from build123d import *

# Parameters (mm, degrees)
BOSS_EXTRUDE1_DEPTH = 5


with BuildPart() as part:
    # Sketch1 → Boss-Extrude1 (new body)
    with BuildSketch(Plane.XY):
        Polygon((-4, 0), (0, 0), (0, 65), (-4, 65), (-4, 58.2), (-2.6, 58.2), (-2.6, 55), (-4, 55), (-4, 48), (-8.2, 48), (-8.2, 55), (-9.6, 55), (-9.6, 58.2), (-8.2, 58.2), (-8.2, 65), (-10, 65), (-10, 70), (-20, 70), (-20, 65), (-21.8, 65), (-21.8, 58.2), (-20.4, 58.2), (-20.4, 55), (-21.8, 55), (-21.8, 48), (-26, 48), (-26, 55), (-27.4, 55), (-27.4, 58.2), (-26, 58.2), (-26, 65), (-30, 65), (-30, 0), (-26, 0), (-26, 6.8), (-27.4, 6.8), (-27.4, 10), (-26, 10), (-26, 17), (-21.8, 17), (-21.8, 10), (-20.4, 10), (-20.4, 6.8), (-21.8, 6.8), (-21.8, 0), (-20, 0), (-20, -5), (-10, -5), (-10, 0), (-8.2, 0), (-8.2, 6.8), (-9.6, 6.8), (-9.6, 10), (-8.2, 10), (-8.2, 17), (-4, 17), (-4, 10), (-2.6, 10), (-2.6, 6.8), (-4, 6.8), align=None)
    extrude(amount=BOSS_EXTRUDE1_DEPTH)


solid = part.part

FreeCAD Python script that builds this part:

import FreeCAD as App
import Part
import Sketcher

doc = App.newDocument("Part")
params = doc.addObject("Spreadsheet::Sheet", "Params")
for row, (alias, value) in enumerate([
    ("sketch1_width", "4 mm"),
    ("sketch1_width2", "10 mm"),
    ("sketch1_height", "65 mm"),
    ("sketch1_height2", "7 mm"),
    ("sketch1_height3", "5 mm"),
    ("pad1_length", "5 mm"),
], start=1):
    params.set(f"A{row}", alias)
    params.set(f"B{row}", "=" + value)
    params.setAlias(f"B{row}", alias)

body = doc.addObject("PartDesign::Body", "Body")

# Sketch on XY plane
sketch1 = body.newObject("Sketcher::SketchObject", "Sketch")
sketch1.AttachmentSupport = (doc.getObject("XY_Plane"), [""])
sketch1.MapMode = "FlatFace"
sketch1.addGeometry(Part.LineSegment(App.Vector(-4, 0, 0), App.Vector(0, 0, 0)), False)
sketch1.addGeometry(Part.LineSegment(App.Vector(0, 0, 0), App.Vector(0, 65, 0)), False)
sketch1.addGeometry(Part.LineSegment(App.Vector(0, 65, 0), App.Vector(-4, 65, 0)), False)
sketch1.addGeometry(Part.LineSegment(App.Vector(-4, 65, 0), App.Vector(-4, 58.2, 0)), False)
sketch1.addGeometry(Part.LineSegment(App.Vector(-4, 58.2, 0), App.Vector(-2.6, 58.2, 0)), False)
sketch1.addGeometry(Part.LineSegment(App.Vector(-2.6, 58.2, 0), App.Vector(-2.6, 55, 0)), False)
sketch1.addGeometry(Part.LineSegment(App.Vector(-2.6, 55, 0), App.Vector(-4, 55, 0)), False)
sketch1.addGeometry(Part.LineSegment(App.Vector(-4, 55, 0), App.Vector(-4, 48, 0)), False)
sketch1.addGeometry(Part.LineSegment(App.Vector(-4, 48, 0), App.Vector(-8.2, 48, 0)), False)
sketch1.addGeometry(Part.LineSegment(App.Vector(-8.2, 48, 0), App.Vector(-8.2, 55, 0)), False)
sketch1.addGeometry(Part.LineSegment(App.Vector(-8.2, 55, 0), App.Vector(-9.6, 55, 0)), False)
sketch1.addGeometry(Part.LineSegment(App.Vector(-9.6, 55, 0), App.Vector(-9.6, 58.2, 0)), False)
sketch1.addGeometry(Part.LineSegment(App.Vector(-9.6, 58.2, 0), App.Vector(-8.2, 58.2, 0)), False)
sketch1.addGeometry(Part.LineSegment(App.Vector(-8.2, 58.2, 0), App.Vector(-8.2, 65, 0)), False)
sketch1.addGeometry(Part.LineSegment(App.Vector(-8.2, 65, 0), App.Vector(-10, 65, 0)), False)
sketch1.addGeometry(Part.LineSegment(App.Vector(-10, 65, 0), App.Vector(-10, 70, 0)), False)
sketch1.addGeometry(Part.LineSegment(App.Vector(-10, 70, 0), App.Vector(-20, 70, 0)), False)
sketch1.addGeometry(Part.LineSegment(App.Vector(-20, 70, 0), App.Vector(-20, 65, 0)), False)
sketch1.addGeometry(Part.LineSegment(App.Vector(-20, 65, 0), App.Vector(-21.8, 65, 0)), False)
sketch1.addGeometry(Part.LineSegment(App.Vector(-21.8, 65, 0), App.Vector(-21.8, 58.2, 0)), False)
sketch1.addGeometry(Part.LineSegment(App.Vector(-21.8, 58.2, 0), App.Vector(-20.4, 58.2, 0)), False)
sketch1.addGeometry(Part.LineSegment(App.Vector(-20.4, 58.2, 0), App.Vector(-20.4, 55, 0)), False)
sketch1.addGeometry(Part.LineSegment(App.Vector(-20.4, 55, 0), App.Vector(-21.8, 55, 0)), False)
sketch1.addGeometry(Part.LineSegment(App.Vector(-21.8, 55, 0), App.Vector(-21.8, 48, 0)), False)
sketch1.addGeometry(Part.LineSegment(App.Vector(-21.8, 48, 0), App.Vector(-26, 48, 0)), False)
sketch1.addGeometry(Part.LineSegment(App.Vector(-26, 48, 0), App.Vector(-26, 55, 0)), False)
sketch1.addGeometry(Part.LineSegment(App.Vector(-26, 55, 0), App.Vector(-27.4, 55, 0)), False)
sketch1.addGeometry(Part.LineSegment(App.Vector(-27.4, 55, 0), App.Vector(-27.4, 58.2, 0)), False)
sketch1.addGeometry(Part.LineSegment(App.Vector(-27.4, 58.2, 0), App.Vector(-26, 58.2, 0)), False)
sketch1.addGeometry(Part.LineSegment(App.Vector(-26, 58.2, 0), App.Vector(-26, 65, 0)), False)
sketch1.addGeometry(Part.LineSegment(App.Vector(-26, 65, 0), App.Vector(-30, 65, 0)), False)
sketch1.addGeometry(Part.LineSegment(App.Vector(-30, 65, 0), App.Vector(-30, 0, 0)), False)
sketch1.addGeometry(Part.LineSegment(App.Vector(-30, 0, 0), App.Vector(-26, 0, 0)), False)
sketch1.addGeometry(Part.LineSegment(App.Vector(-26, 0, 0), App.Vector(-26, 6.8, 0)), False)
sketch1.addGeometry(Part.LineSegment(App.Vector(-26, 6.8, 0), App.Vector(-27.4, 6.8, 0)), False)
sketch1.addGeometry(Part.LineSegment(App.Vector(-27.4, 6.8, 0), App.Vector(-27.4, 10, 0)), False)
sketch1.addGeometry(Part.LineSegment(App.Vector(-27.4, 10, 0), App.Vector(-26, 10, 0)), False)
sketch1.addGeometry(Part.LineSegment(App.Vector(-26, 10, 0), App.Vector(-26, 17, 0)), False)
sketch1.addGeometry(Part.LineSegment(App.Vector(-26, 17, 0), App.Vector(-21.8, 17, 0)), False)
sketch1.addGeometry(Part.LineSegment(App.Vector(-21.8, 17, 0), App.Vector(-21.8, 10, 0)), False)
sketch1.addGeometry(Part.LineSegment(App.Vector(-21.8, 10, 0), App.Vector(-20.4, 10, 0)), False)
sketch1.addGeometry(Part.LineSegment(App.Vector(-20.4, 10, 0), App.Vector(-20.4, 6.8, 0)), False)
sketch1.addGeometry(Part.LineSegment(App.Vector(-20.4, 6.8, 0), App.Vector(-21.8, 6.8, 0)), False)
sketch1.addGeometry(Part.LineSegment(App.Vector(-21.8, 6.8, 0), App.Vector(-21.8, 0, 0)), False)
sketch1.addGeometry(Part.LineSegment(App.Vector(-21.8, 0, 0), App.Vector(-20, 0, 0)), False)
sketch1.addGeometry(Part.LineSegment(App.Vector(-20, 0, 0), App.Vector(-20, -5, 0)), False)
sketch1.addGeometry(Part.LineSegment(App.Vector(-20, -5, 0), App.Vector(-10, -5, 0)), False)
sketch1.addGeometry(Part.LineSegment(App.Vector(-10, -5, 0), App.Vector(-10, 0, 0)), False)
sketch1.addGeometry(Part.LineSegment(App.Vector(-10, 0, 0), App.Vector(-8.2, 0, 0)), False)
sketch1.addGeometry(Part.LineSegment(App.Vector(-8.2, 0, 0), App.Vector(-8.2, 6.8, 0)), False)
sketch1.addGeometry(Part.LineSegment(App.Vector(-8.2, 6.8, 0), App.Vector(-9.6, 6.8, 0)), False)
sketch1.addGeometry(Part.LineSegment(App.Vector(-9.6, 6.8, 0), App.Vector(-9.6, 10, 0)), False)
sketch1.addGeometry(Part.LineSegment(App.Vector(-9.6, 10, 0), App.Vector(-8.2, 10, 0)), False)
sketch1.addGeometry(Part.LineSegment(App.Vector(-8.2, 10, 0), App.Vector(-8.2, 17, 0)), False)
sketch1.addGeometry(Part.LineSegment(App.Vector(-8.2, 17, 0), App.Vector(-4, 17, 0)), False)
sketch1.addGeometry(Part.LineSegment(App.Vector(-4, 17, 0), App.Vector(-4, 10, 0)), False)
sketch1.addGeometry(Part.LineSegment(App.Vector(-4, 10, 0), App.Vector(-2.6, 10, 0)), False)
sketch1.addGeometry(Part.LineSegment(App.Vector(-2.6, 10, 0), App.Vector(-2.6, 6.8, 0)), False)
sketch1.addGeometry(Part.LineSegment(App.Vector(-2.6, 6.8, 0), App.Vector(-4, 6.8, 0)), False)
sketch1.addGeometry(Part.LineSegment(App.Vector(-4, 6.8, 0), App.Vector(-4, 0, 0)), False)
sketch1.addConstraint(Sketcher.Constraint("Coincident", 0, 2, 1, 1))
sketch1.addConstraint(Sketcher.Constraint("Coincident", 1, 2, 2, 1))
sketch1.addConstraint(Sketcher.Constraint("Coincident", 2, 2, 3, 1))
sketch1.addConstraint(Sketcher.Constraint("Coincident", 3, 2, 4, 1))
sketch1.addConstraint(Sketcher.Constraint("Coincident", 4, 2, 5, 1))
sketch1.addConstraint(Sketcher.Constraint("Coincident", 5, 2, 6, 1))
sketch1.addConstraint(Sketcher.Constraint("Coincident", 6, 2, 7, 1))
sketch1.addConstraint(Sketcher.Constraint("Coincident", 7, 2, 8, 1))
sketch1.addConstraint(Sketcher.Constraint("Coincident", 8, 2, 9, 1))
sketch1.addConstraint(Sketcher.Constraint("Coincident", 9, 2, 10, 1))
sketch1.addConstraint(Sketcher.Constraint("Coincident", 10, 2, 11, 1))
sketch1.addConstraint(Sketcher.Constraint("Coincident", 11, 2, 12, 1))
sketch1.addConstraint(Sketcher.Constraint("Coincident", 12, 2, 13, 1))
sketch1.addConstraint(Sketcher.Constraint("Coincident", 13, 2, 14, 1))
sketch1.addConstraint(Sketcher.Constraint("Coincident", 14, 2, 15, 1))
sketch1.addConstraint(Sketcher.Constraint("Coincident", 15, 2, 16, 1))
sketch1.addConstraint(Sketcher.Constraint("Coincident", 16, 2, 17, 1))
sketch1.addConstraint(Sketcher.Constraint("Coincident", 17, 2, 18, 1))
sketch1.addConstraint(Sketcher.Constraint("Coincident", 18, 2, 19, 1))
sketch1.addConstraint(Sketcher.Constraint("Coincident", 19, 2, 20, 1))
sketch1.addConstraint(Sketcher.Constraint("Coincident", 20, 2, 21, 1))
sketch1.addConstraint(Sketcher.Constraint("Coincident", 21, 2, 22, 1))
sketch1.addConstraint(Sketcher.Constraint("Coincident", 22, 2, 23, 1))
sketch1.addConstraint(Sketcher.Constraint("Coincident", 23, 2, 24, 1))
sketch1.addConstraint(Sketcher.Constraint("Coincident", 24, 2, 25, 1))
sketch1.addConstraint(Sketcher.Constraint("Coincident", 25, 2, 26, 1))
sketch1.addConstraint(Sketcher.Constraint("Coincident", 26, 2, 27, 1))
sketch1.addConstraint(Sketcher.Constraint("Coincident", 27, 2, 28, 1))
sketch1.addConstraint(Sketcher.Constraint("Coincident", 28, 2, 29, 1))
sketch1.addConstraint(Sketcher.Constraint("Coincident", 29, 2, 30, 1))
sketch1.addConstraint(Sketcher.Constraint("Coincident", 30, 2, 31, 1))
sketch1.addConstraint(Sketcher.Constraint("Coincident", 31, 2, 32, 1))
sketch1.addConstraint(Sketcher.Constraint("Coincident", 32, 2, 33, 1))
sketch1.addConstraint(Sketcher.Constraint("Coincident", 33, 2, 34, 1))
sketch1.addConstraint(Sketcher.Constraint("Coincident", 34, 2, 35, 1))
sketch1.addConstraint(Sketcher.Constraint("Coincident", 35, 2, 36, 1))
sketch1.addConstraint(Sketcher.Constraint("Coincident", 36, 2, 37, 1))
sketch1.addConstraint(Sketcher.Constraint("Coincident", 37, 2, 38, 1))
sketch1.addConstraint(Sketcher.Constraint("Coincident", 38, 2, 39, 1))
sketch1.addConstraint(Sketcher.Constraint("Coincident", 39, 2, 40, 1))
sketch1.addConstraint(Sketcher.Constraint("Coincident", 40, 2, 41, 1))
sketch1.addConstraint(Sketcher.Constraint("Coincident", 41, 2, 42, 1))
sketch1.addConstraint(Sketcher.Constraint("Coincident", 42, 2, 43, 1))
sketch1.addConstraint(Sketcher.Constraint("Coincident", 43, 2, 44, 1))
sketch1.addConstraint(Sketcher.Constraint("Coincident", 44, 2, 45, 1))
sketch1.addConstraint(Sketcher.Constraint("Coincident", 45, 2, 46, 1))
sketch1.addConstraint(Sketcher.Constraint("Coincident", 46, 2, 47, 1))
sketch1.addConstraint(Sketcher.Constraint("Coincident", 47, 2, 48, 1))
sketch1.addConstraint(Sketcher.Constraint("Coincident", 48, 2, 49, 1))
sketch1.addConstraint(Sketcher.Constraint("Coincident", 49, 2, 50, 1))
sketch1.addConstraint(Sketcher.Constraint("Coincident", 50, 2, 51, 1))
sketch1.addConstraint(Sketcher.Constraint("Coincident", 51, 2, 52, 1))
sketch1.addConstraint(Sketcher.Constraint("Coincident", 52, 2, 53, 1))
sketch1.addConstraint(Sketcher.Constraint("Coincident", 53, 2, 54, 1))
sketch1.addConstraint(Sketcher.Constraint("Coincident", 54, 2, 55, 1))
sketch1.addConstraint(Sketcher.Constraint("Coincident", 55, 2, 56, 1))
sketch1.addConstraint(Sketcher.Constraint("Coincident", 56, 2, 57, 1))
sketch1.addConstraint(Sketcher.Constraint("Coincident", 57, 2, 58, 1))
sketch1.addConstraint(Sketcher.Constraint("Coincident", 58, 2, 59, 1))
sketch1.addConstraint(Sketcher.Constraint("Coincident", 59, 2, 0, 1))
sketch1.addConstraint(Sketcher.Constraint("Horizontal", 0))
sketch1.addConstraint(Sketcher.Constraint("Vertical", 1))
sketch1.addConstraint(Sketcher.Constraint("Horizontal", 2))
sketch1.addConstraint(Sketcher.Constraint("Vertical", 3))
sketch1.addConstraint(Sketcher.Constraint("Horizontal", 4))
sketch1.addConstraint(Sketcher.Constraint("Vertical", 5))
sketch1.addConstraint(Sketcher.Constraint("Horizontal", 6))
sketch1.addConstraint(Sketcher.Constraint("Vertical", 7))
sketch1.addConstraint(Sketcher.Constraint("Horizontal", 8))
sketch1.addConstraint(Sketcher.Constraint("Vertical", 9))
sketch1.addConstraint(Sketcher.Constraint("Horizontal", 10))
sketch1.addConstraint(Sketcher.Constraint("Vertical", 11))
sketch1.addConstraint(Sketcher.Constraint("Horizontal", 12))
sketch1.addConstraint(Sketcher.Constraint("Vertical", 13))
sketch1.addConstraint(Sketcher.Constraint("Horizontal", 14))
sketch1.addConstraint(Sketcher.Constraint("Vertical", 15))
sketch1.addConstraint(Sketcher.Constraint("Horizontal", 16))
sketch1.addConstraint(Sketcher.Constraint("Vertical", 17))
sketch1.addConstraint(Sketcher.Constraint("Horizontal", 18))
sketch1.addConstraint(Sketcher.Constraint("Vertical", 19))
sketch1.addConstraint(Sketcher.Constraint("Horizontal", 20))
sketch1.addConstraint(Sketcher.Constraint("Vertical", 21))
sketch1.addConstraint(Sketcher.Constraint("Horizontal", 22))
sketch1.addConstraint(Sketcher.Constraint("Vertical", 23))
sketch1.addConstraint(Sketcher.Constraint("Horizontal", 24))
sketch1.addConstraint(Sketcher.Constraint("Vertical", 25))
sketch1.addConstraint(Sketcher.Constraint("Horizontal", 26))
sketch1.addConstraint(Sketcher.Constraint("Vertical", 27))
sketch1.addConstraint(Sketcher.Constraint("Horizontal", 28))
sketch1.addConstraint(Sketcher.Constraint("Vertical", 29))
sketch1.addConstraint(Sketcher.Constraint("Horizontal", 30))
sketch1.addConstraint(Sketcher.Constraint("Vertical", 31))
sketch1.addConstraint(Sketcher.Constraint("Horizontal", 32))
sketch1.addConstraint(Sketcher.Constraint("Vertical", 33))
sketch1.addConstraint(Sketcher.Constraint("Horizontal", 34))
sketch1.addConstraint(Sketcher.Constraint("Vertical", 35))
sketch1.addConstraint(Sketcher.Constraint("Horizontal", 36))
sketch1.addConstraint(Sketcher.Constraint("Vertical", 37))
sketch1.addConstraint(Sketcher.Constraint("Horizontal", 38))
sketch1.addConstraint(Sketcher.Constraint("Vertical", 39))
sketch1.addConstraint(Sketcher.Constraint("Horizontal", 40))
sketch1.addConstraint(Sketcher.Constraint("Vertical", 41))
sketch1.addConstraint(Sketcher.Constraint("Horizontal", 42))
sketch1.addConstraint(Sketcher.Constraint("Vertical", 43))
sketch1.addConstraint(Sketcher.Constraint("Horizontal", 44))
sketch1.addConstraint(Sketcher.Constraint("Vertical", 45))
sketch1.addConstraint(Sketcher.Constraint("Horizontal", 46))
sketch1.addConstraint(Sketcher.Constraint("Vertical", 47))
sketch1.addConstraint(Sketcher.Constraint("Horizontal", 48))
sketch1.addConstraint(Sketcher.Constraint("Vertical", 49))
sketch1.addConstraint(Sketcher.Constraint("Horizontal", 50))
sketch1.addConstraint(Sketcher.Constraint("Vertical", 51))
sketch1.addConstraint(Sketcher.Constraint("Horizontal", 52))
sketch1.addConstraint(Sketcher.Constraint("Vertical", 53))
sketch1.addConstraint(Sketcher.Constraint("Horizontal", 54))
sketch1.addConstraint(Sketcher.Constraint("Vertical", 55))
sketch1.addConstraint(Sketcher.Constraint("Horizontal", 56))
sketch1.addConstraint(Sketcher.Constraint("Vertical", 57))
sketch1.addConstraint(Sketcher.Constraint("Horizontal", 58))
sketch1.addConstraint(Sketcher.Constraint("Vertical", 59))
sketch1.addConstraint(Sketcher.Constraint("Coincident", 0, 2, -1, 1))
sketch1.addConstraint(Sketcher.Constraint("PointOnObject", 31, 2, -1))
sketch1.addConstraint(Sketcher.Constraint("PointOnObject", 43, 2, -1))
sketch1.addConstraint(Sketcher.Constraint("PointOnObject", 47, 2, -1))
sketch1.addConstraint(Sketcher.Constraint("Horizontal", 6, 2, 9, 2))
sketch1.addConstraint(Sketcher.Constraint("Horizontal", 4, 2, 11, 2))
sketch1.addConstraint(Sketcher.Constraint("Horizontal", 2, 2, 13, 2))
sketch1.addConstraint(Sketcher.Constraint("Horizontal", 14, 2, 17, 2))
sketch1.addConstraint(Sketcher.Constraint("Horizontal", 12, 2, 19, 2))
sketch1.addConstraint(Sketcher.Constraint("Horizontal", 10, 2, 21, 2))
sketch1.addConstraint(Sketcher.Constraint("Horizontal", 8, 2, 23, 2))
sketch1.addConstraint(Sketcher.Constraint("Horizontal", 22, 2, 25, 2))
sketch1.addConstraint(Sketcher.Constraint("Horizontal", 20, 2, 27, 2))
sketch1.addConstraint(Sketcher.Constraint("Horizontal", 18, 2, 29, 2))
sketch1.addConstraint(Sketcher.Constraint("Horizontal", 36, 2, 39, 2))
sketch1.addConstraint(Sketcher.Constraint("Horizontal", 34, 2, 41, 2))
sketch1.addConstraint(Sketcher.Constraint("Horizontal", 42, 2, 49, 2))
sketch1.addConstraint(Sketcher.Constraint("Horizontal", 40, 2, 51, 2))
sketch1.addConstraint(Sketcher.Constraint("Horizontal", 38, 2, 53, 2))
sketch1.addConstraint(Sketcher.Constraint("Horizontal", 52, 2, 55, 2))
sketch1.addConstraint(Sketcher.Constraint("Horizontal", 50, 2, 57, 2))
sketch1.addConstraint(Sketcher.Constraint("Vertical", 3, 2, 6, 2))
sketch1.addConstraint(Sketcher.Constraint("Vertical", 9, 2, 12, 2))
sketch1.addConstraint(Sketcher.Constraint("Vertical", 19, 2, 22, 2))
sketch1.addConstraint(Sketcher.Constraint("Vertical", 25, 2, 28, 2))
sketch1.addConstraint(Sketcher.Constraint("Vertical", 29, 2, 32, 2))
sketch1.addConstraint(Sketcher.Constraint("Vertical", 27, 2, 34, 2))
sketch1.addConstraint(Sketcher.Constraint("Vertical", 33, 2, 36, 2))
sketch1.addConstraint(Sketcher.Constraint("Vertical", 23, 2, 38, 2))
sketch1.addConstraint(Sketcher.Constraint("Vertical", 21, 2, 40, 2))
sketch1.addConstraint(Sketcher.Constraint("Vertical", 39, 2, 42, 2))
sketch1.addConstraint(Sketcher.Constraint("Vertical", 17, 2, 44, 2))
sketch1.addConstraint(Sketcher.Constraint("Vertical", 15, 2, 46, 2))
sketch1.addConstraint(Sketcher.Constraint("Vertical", 13, 2, 48, 2))
sketch1.addConstraint(Sketcher.Constraint("Vertical", 11, 2, 50, 2))
sketch1.addConstraint(Sketcher.Constraint("Vertical", 49, 2, 52, 2))
sketch1.addConstraint(Sketcher.Constraint("Vertical", 7, 2, 54, 2))
sketch1.addConstraint(Sketcher.Constraint("Vertical", 5, 2, 56, 2))
sketch1.addConstraint(Sketcher.Constraint("Vertical", 55, 2, 58, 2))
sketch1.addConstraint(Sketcher.Constraint("Equal", 6, 10))
sketch1.addConstraint(Sketcher.Constraint("Equal", 14, 18))
sketch1.addConstraint(Sketcher.Constraint("Equal", 12, 20))
sketch1.addConstraint(Sketcher.Constraint("Equal", 8, 24))
sketch1.addConstraint(Sketcher.Constraint("Equal", 22, 26))
sketch1.addConstraint(Sketcher.Constraint("Equal", 2, 30))
sketch1.addConstraint(Sketcher.Constraint("Equal", 29, 33))
sketch1.addConstraint(Sketcher.Constraint("Equal", 27, 35))
sketch1.addConstraint(Sketcher.Constraint("Equal", 25, 37))
sketch1.addConstraint(Sketcher.Constraint("Equal", 17, 45))
sketch1.addConstraint(Sketcher.Constraint("DistanceX", 0, 1, 0, 2, 4.0))
sketch1.addConstraint(Sketcher.Constraint("DistanceX", 16, 2, 16, 1, 10.0))
sketch1.addConstraint(Sketcher.Constraint("DistanceY", 1, 1, 1, 2, 65.0))
sketch1.addConstraint(Sketcher.Constraint("DistanceY", 7, 2, 7, 1, 7.0))
sketch1.addConstraint(Sketcher.Constraint("DistanceY", 15, 1, 15, 2, 5.0))
sketch1.addConstraint(Sketcher.Constraint("DistanceX", 4, 1, 4, 2, 1.4))
sketch1.addConstraint(Sketcher.Constraint("DistanceX", 8, 2, 8, 1, 4.2))
sketch1.addConstraint(Sketcher.Constraint("DistanceX", 14, 2, 14, 1, 1.8))
sketch1.addConstraint(Sketcher.Constraint("DistanceY", 3, 2, 3, 1, 6.8))
sketch1.addConstraint(Sketcher.Constraint("DistanceY", 5, 2, 5, 1, 3.2))
sketch1.setExpression("Constraints[169]", "Params.sketch1_width")
sketch1.setExpression("Constraints[170]", "Params.sketch1_width2")
sketch1.setExpression("Constraints[171]", "Params.sketch1_height")
sketch1.setExpression("Constraints[172]", "Params.sketch1_height2")
sketch1.setExpression("Constraints[173]", "Params.sketch1_height3")
pad1 = body.newObject("PartDesign::Pad", "Pad")
pad1.Profile = sketch1
pad1.setExpression("Length", "Params.pad1_length")

doc.recompute()
